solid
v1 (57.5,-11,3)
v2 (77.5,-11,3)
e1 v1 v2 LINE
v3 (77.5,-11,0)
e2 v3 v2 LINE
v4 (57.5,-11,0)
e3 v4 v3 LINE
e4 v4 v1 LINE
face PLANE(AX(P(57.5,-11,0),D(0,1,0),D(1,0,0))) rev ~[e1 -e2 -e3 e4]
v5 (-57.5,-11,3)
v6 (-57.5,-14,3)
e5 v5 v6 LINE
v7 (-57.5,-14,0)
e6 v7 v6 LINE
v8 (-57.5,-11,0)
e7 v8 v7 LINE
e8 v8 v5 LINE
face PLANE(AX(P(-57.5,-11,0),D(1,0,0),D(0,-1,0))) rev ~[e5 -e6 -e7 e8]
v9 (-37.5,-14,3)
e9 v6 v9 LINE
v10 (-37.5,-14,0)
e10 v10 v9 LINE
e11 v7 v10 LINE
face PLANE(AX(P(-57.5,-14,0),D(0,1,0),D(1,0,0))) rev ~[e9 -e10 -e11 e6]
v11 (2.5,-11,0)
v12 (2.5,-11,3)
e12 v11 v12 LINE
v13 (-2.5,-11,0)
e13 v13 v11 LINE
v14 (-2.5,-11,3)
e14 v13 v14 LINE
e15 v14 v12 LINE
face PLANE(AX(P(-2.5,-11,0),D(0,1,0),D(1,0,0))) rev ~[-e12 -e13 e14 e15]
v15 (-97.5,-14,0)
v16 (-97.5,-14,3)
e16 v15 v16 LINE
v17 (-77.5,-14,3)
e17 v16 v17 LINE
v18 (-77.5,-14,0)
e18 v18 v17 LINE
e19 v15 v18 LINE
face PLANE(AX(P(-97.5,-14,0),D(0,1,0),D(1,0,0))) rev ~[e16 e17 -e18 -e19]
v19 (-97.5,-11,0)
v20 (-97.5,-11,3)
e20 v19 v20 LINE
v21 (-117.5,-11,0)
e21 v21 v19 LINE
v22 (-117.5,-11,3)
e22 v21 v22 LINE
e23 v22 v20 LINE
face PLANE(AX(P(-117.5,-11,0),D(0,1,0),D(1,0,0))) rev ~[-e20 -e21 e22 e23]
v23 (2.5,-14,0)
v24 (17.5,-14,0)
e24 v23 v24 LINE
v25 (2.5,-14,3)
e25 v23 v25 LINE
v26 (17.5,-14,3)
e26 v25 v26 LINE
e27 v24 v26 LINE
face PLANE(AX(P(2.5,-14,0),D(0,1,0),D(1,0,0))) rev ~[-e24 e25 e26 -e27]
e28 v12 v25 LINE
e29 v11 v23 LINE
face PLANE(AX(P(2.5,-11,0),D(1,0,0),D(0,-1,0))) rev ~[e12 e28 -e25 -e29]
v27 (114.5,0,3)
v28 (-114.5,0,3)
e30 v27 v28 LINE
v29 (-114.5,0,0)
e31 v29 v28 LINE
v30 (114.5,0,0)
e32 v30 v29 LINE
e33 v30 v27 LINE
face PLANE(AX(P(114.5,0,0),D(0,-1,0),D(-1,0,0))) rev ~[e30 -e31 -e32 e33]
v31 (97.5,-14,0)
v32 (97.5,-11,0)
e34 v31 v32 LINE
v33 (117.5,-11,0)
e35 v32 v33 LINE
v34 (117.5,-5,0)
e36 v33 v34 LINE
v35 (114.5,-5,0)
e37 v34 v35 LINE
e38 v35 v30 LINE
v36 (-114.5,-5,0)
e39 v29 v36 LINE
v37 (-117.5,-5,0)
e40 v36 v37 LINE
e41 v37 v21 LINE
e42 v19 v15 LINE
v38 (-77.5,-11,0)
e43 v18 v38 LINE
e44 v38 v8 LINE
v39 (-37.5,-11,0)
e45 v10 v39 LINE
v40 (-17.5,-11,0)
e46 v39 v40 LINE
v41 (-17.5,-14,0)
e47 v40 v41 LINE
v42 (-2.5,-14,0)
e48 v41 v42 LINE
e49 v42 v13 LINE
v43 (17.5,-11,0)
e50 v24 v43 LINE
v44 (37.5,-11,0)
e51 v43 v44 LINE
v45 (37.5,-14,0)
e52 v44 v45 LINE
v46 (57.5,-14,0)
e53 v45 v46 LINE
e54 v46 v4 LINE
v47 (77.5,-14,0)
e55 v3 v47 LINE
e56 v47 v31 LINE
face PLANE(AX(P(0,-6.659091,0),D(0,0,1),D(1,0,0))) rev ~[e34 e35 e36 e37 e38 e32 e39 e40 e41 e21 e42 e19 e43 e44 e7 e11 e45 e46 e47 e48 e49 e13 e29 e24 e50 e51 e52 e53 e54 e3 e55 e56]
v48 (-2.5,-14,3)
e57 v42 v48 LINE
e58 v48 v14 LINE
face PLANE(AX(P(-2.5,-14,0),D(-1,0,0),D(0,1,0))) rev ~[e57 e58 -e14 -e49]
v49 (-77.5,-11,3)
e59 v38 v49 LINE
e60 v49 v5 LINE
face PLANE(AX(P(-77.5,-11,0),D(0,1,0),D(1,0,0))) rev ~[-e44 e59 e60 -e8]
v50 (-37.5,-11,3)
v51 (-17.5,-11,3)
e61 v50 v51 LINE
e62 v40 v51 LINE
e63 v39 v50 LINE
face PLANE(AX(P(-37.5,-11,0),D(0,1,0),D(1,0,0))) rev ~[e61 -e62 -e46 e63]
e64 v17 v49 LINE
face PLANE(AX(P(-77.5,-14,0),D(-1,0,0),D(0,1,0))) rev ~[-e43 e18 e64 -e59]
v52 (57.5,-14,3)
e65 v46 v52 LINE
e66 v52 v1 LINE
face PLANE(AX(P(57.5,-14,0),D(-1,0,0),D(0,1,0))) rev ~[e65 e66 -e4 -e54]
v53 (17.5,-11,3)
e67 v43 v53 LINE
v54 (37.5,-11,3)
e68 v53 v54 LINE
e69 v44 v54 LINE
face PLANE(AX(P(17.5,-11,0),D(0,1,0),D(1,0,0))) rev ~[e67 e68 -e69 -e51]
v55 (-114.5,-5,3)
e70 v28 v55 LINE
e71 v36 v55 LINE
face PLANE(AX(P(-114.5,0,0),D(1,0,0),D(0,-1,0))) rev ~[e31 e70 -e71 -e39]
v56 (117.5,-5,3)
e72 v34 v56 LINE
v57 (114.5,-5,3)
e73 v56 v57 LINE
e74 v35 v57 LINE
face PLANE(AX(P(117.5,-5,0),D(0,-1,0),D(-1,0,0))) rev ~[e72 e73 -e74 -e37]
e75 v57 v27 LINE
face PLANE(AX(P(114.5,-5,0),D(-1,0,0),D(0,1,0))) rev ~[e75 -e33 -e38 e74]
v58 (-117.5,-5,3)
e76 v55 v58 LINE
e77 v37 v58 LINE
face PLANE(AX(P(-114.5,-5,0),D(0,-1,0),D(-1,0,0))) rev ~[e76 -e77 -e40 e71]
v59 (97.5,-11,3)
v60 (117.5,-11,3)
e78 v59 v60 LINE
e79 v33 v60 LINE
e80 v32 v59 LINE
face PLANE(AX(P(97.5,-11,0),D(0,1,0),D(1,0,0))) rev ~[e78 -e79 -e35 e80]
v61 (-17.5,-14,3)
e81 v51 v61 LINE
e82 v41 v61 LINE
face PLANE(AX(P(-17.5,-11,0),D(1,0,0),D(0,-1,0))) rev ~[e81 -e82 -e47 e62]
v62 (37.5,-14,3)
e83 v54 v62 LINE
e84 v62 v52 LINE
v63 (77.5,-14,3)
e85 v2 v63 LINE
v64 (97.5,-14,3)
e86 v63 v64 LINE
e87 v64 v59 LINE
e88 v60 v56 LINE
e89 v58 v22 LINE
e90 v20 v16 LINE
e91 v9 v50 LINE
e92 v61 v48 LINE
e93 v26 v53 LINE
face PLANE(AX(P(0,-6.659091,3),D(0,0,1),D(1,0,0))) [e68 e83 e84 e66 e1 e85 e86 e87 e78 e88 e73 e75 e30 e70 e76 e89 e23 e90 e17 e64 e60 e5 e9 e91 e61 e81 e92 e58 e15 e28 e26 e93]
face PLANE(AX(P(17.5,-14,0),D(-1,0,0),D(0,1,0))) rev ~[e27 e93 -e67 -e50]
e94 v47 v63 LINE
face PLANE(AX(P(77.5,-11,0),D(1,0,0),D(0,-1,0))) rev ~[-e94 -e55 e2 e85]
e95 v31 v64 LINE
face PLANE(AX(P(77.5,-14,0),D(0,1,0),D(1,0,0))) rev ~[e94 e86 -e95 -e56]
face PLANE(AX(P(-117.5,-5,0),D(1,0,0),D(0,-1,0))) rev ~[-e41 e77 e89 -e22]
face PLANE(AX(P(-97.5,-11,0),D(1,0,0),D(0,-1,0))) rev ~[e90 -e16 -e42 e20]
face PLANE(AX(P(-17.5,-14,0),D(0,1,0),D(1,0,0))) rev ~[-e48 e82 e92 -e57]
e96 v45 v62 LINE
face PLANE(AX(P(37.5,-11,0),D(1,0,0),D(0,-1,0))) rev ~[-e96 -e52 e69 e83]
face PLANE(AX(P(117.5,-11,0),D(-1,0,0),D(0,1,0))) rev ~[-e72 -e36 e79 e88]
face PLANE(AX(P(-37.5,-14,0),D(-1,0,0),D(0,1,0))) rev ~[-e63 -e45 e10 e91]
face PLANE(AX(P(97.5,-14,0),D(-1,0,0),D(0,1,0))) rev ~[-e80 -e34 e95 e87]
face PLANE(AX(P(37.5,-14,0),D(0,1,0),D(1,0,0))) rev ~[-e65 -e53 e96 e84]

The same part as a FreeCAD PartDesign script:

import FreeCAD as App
import Part
import Sketcher

V = App.Vector


def add_polygon(sketch, points):
    """Adds a closed chain of lines whose ends are joined by coincident constraints."""
    first, n = sketch.GeometryCount, len(points)
    for a, b in zip(points, points[1:] + points[:1]):
        sketch.addGeometry(Part.LineSegment(App.Vector(*a, 0), App.Vector(*b, 0)), False)
    for i in range(n):
        sketch.addConstraint(Sketcher.Constraint("Coincident", first + i, 2, first + (i + 1) % n, 1))

doc = App.newDocument("Part")
body = doc.addObject("PartDesign::Body", "Body")

sketch1 = body.newObject("Sketcher::SketchObject", "Sketch")
sketch1.AttachmentSupport = (doc.getObject("XY_Plane"), [""])
sketch1.MapMode = "FlatFace"
add_polygon(sketch1, [(-117.5, -5), (-117.5, -11), (-97.5, -11), (-97.5, -14), (-77.5, -14), (-77.5, -11), (-57.5, -11), (-57.5, -14), (-37.5, -14), (-37.5, -11), (-17.5, -11), (-17.5, -14), (-2.5, -14), (-2.5, -11), (2.5, -11), (2.5, -14), (17.5, -14), (17.5, -11), (37.5, -11), (37.5, -14), (57.5, -14), (57.5, -11), (77.5, -11), (77.5, -14), (97.5, -14), (97.5, -11), (117.5, -11), (117.5, -5), (114.5, -5), (114.5, 0), (-114.5, 0), (-114.5, -5)])
sketch1.addConstraint([
    Sketcher.Constraint("Vertical", 0),
    Sketcher.Constraint("Horizontal", 1),
    Sketcher.Constraint("Vertical", 2),
    Sketcher.Constraint("Horizontal", 3),
    Sketcher.Constraint("Vertical", 4),
    Sketcher.Constraint("Horizontal", 5),
    Sketcher.Constraint("Vertical", 6),
    Sketcher.Constraint("Horizontal", 7),
    Sketcher.Constraint("Vertical", 8),
    Sketcher.Constraint("Horizontal", 9),
    Sketcher.Constraint("Vertical", 10),
    Sketcher.Constraint("Horizontal", 11),
    Sketcher.Constraint("Vertical", 12),
    Sketcher.Constraint("Horizontal", 13),
    Sketcher.Constraint("Vertical", 14),
    Sketcher.Constraint("Horizontal", 15),
    Sketcher.Constraint("Vertical", 16),
    Sketcher.Constraint("Horizontal", 17),
    Sketcher.Constraint("Vertical", 18),
    Sketcher.Constraint("Horizontal", 19),
    Sketcher.Constraint("Vertical", 20),
    Sketcher.Constraint("Horizontal", 21),
    Sketcher.Constraint("Vertical", 22),
    Sketcher.Constraint("Horizontal", 23),
    Sketcher.Constraint("Vertical", 24),
    Sketcher.Constraint("Horizontal", 25),
    Sketcher.Constraint("Vertical", 26),
    Sketcher.Constraint("Horizontal", 27),
    Sketcher.Constraint("Vertical", 28),
    Sketcher.Constraint("Horizontal", 29),
    Sketcher.Constraint("Vertical", 30),
    Sketcher.Constraint("Horizontal", 31),
    Sketcher.Constraint("Symmetric", 28, 2, 29, 2, -1, 1),
    Sketcher.Constraint("Symmetric", 11, 2, 14, 2, -2),
    Sketcher.Constraint("Symmetric", 9, 2, 16, 2, -2),
    Sketcher.Constraint("Symmetric", 7, 2, 18, 2, -2),
    Sketcher.Constraint("Symmetric", 5, 2, 20, 2, -2),
    Sketcher.Constraint("Symmetric", 3, 2, 22, 2, -2),
    Sketcher.Constraint("Symmetric", 1, 2, 24, 2, -2),
    Sketcher.Constraint("Symmetric", 26, 2, 31, 2, -2),
    Sketcher.Constraint("Horizontal", 1, 2, 4, 2),
    Sketcher.Constraint("Horizontal", 3, 2, 6, 2),
    Sketcher.Constraint("Horizontal", 5, 2, 8, 2),
    Sketcher.Constraint("Horizontal", 7, 2, 10, 2),
    Sketcher.Constraint("Horizontal", 9, 2, 12, 2),
    Sketcher.Constraint("Equal", 1, 3),
    Sketcher.Constraint("Equal", 3, 5),
    Sketcher.Constraint("Equal", 5, 7),
    Sketcher.Constraint("Equal", 7, 9),
    Sketcher.Constraint("Equal", 31, 2),
    Sketcher.Constraint("Equal", 13, 28),
    Sketcher.Constraint("DistanceX", 1, 1, 1, 2, 20.0),
    Sketcher.Constraint("DistanceX", 11, 1, 11, 2, 15.0),
    Sketcher.Constraint("DistanceX", 13, 1, 13, 2, 5.0),
    Sketcher.Constraint("DistanceX", 27, 2, 27, 1, 3.0),
    Sketcher.Constraint("DistanceY", 0, 2, 0, 1, 6.0),
])
pad1 = body.newObject("PartDesign::Pad", "Pad")
pad1.Profile = sketch1
pad1.Length = 3

doc.recompute()
